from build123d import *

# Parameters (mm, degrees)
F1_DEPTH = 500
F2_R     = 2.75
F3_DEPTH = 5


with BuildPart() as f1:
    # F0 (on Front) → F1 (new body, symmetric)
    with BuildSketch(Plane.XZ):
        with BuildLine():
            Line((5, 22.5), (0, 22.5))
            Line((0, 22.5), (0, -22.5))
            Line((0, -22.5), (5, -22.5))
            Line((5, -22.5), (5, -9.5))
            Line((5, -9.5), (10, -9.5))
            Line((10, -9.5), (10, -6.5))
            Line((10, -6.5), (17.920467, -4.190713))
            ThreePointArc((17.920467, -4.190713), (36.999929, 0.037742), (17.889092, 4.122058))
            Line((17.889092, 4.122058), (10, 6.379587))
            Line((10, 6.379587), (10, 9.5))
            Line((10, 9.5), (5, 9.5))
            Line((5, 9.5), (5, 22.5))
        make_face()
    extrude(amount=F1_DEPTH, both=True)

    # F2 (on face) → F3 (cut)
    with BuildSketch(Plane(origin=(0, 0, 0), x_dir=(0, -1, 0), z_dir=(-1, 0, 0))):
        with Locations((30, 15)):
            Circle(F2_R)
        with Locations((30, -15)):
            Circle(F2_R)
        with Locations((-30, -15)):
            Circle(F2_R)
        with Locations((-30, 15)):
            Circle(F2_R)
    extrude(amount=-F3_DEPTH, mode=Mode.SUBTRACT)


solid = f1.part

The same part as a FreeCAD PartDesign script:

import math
import FreeCAD as App
import Part
import Sketcher

doc = App.newDocument("Part")
body = doc.addObject("PartDesign::Body", "Body")

# Sketch on XZ plane
sketch1 = body.newObject("Sketcher::SketchObject", "Sketch")
sketch1.AttachmentSupport = (doc.getObject("XZ_Plane"), [""])
sketch1.MapMode = "FlatFace"
sketch1.addGeometry([
    Part.LineSegment(App.Vector(5, 22.5, 0), App.Vector(0, 22.5, 0)),  # 0
    Part.LineSegment(App.Vector(0, 22.5, 0), App.Vector(0, -22.5, 0)),  # 1
    Part.LineSegment(App.Vector(0, -22.5, 0), App.Vector(5, -22.5, 0)),  # 2
    Part.LineSegment(App.Vector(5, -22.5, 0), App.Vector(5, -9.5, 0)),  # 3
    Part.LineSegment(App.Vector(5, -9.5, 0), App.Vector(10, -9.5, 0)),  # 4
    Part.LineSegment(App.Vector(10, -9.5, 0), App.Vector(10, -6.5, 0)),  # 5
    Part.LineSegment(App.Vector(10, -6.5, 0), App.Vector(17.920467, -4.190713, 0)),  # 6
    Part.ArcOfCircle(Part.Circle(App.Vector(27, 0.000001, 0), App.Vector(0, 0, 1), 10), math.radians(-155.224027), math.radians(155.65653)),  # 7
    Part.LineSegment(App.Vector(17.889092, 4.122058, 0), App.Vector(10, 6.379587, 0)),  # 8
    Part.LineSegment(App.Vector(10, 6.379587, 0), App.Vector(10, 9.5, 0)),  # 9
    Part.LineSegment(App.Vector(10, 9.5, 0), App.Vector(5, 9.5, 0)),  # 10
    Part.LineSegment(App.Vector(5, 9.5, 0), App.Vector(5, 22.5, 0)),  # 11
], False)
sketch1.addConstraint([
    Sketcher.Constraint("Coincident", 0, 2, 1, 1),
    Sketcher.Constraint("Coincident", 1, 2, 2, 1),
    Sketcher.Constraint("Coincident", 2, 2, 3, 1),
    Sketcher.Constraint("Coincident", 3, 2, 4, 1),
    Sketcher.Constraint("Coincident", 4, 2, 5, 1),
    Sketcher.Constraint("Coincident", 5, 2, 6, 1),
    Sketcher.Constraint("Coincident", 6, 2, 7, 1),
    Sketcher.Constraint("Coincident", 7, 2, 8, 1),
    Sketcher.Constraint("Coincident", 8, 2, 9, 1),
    Sketcher.Constraint("Coincident", 9, 2, 10, 1),
    Sketcher.Constraint("Coincident", 10, 2, 11, 1),
    Sketcher.Constraint("Coincident", 11, 2, 0, 1),
    Sketcher.Constraint("Horizontal", 0),
    Sketcher.Constraint("Vertical", 1),
    Sketcher.Constraint("Horizontal", 2),
    Sketcher.Constraint("Vertical", 3),
    Sketcher.Constraint("Horizontal", 4),
    Sketcher.Constraint("Vertical", 5),
    Sketcher.Constraint("Vertical", 9),
    Sketcher.Constraint("Horizontal", 10),
    Sketcher.Constraint("Vertical", 11),
    Sketcher.Constraint("Symmetric", 0, 2, 1, 2, -1, 1),
    Sketcher.Constraint("Symmetric", 4, 2, 9, 2, -1),
    Sketcher.Constraint("PointOnObject", 7, 3, -1),
    Sketcher.Constraint("Vertical", 3, 2, 10, 2),
    Sketcher.Constraint("Equal", 2, 4),
    Sketcher.Constraint("Radius", 7, 10.0),
    Sketcher.Constraint("DistanceX", 0, 2, 0, 1, 5.0),
    Sketcher.Constraint("DistanceY", 1, 2, 1, 1, 45.0),
    Sketcher.Constraint("DistanceY", 3, 1, 3, 2, 13.0),
    Sketcher.Constraint("DistanceY", 5, 1, 5, 2, 3.0),
    Sketcher.Constraint("DistanceX", -1, 1, 7, 3, 27.0),
    Sketcher.Constraint("DistanceY", 6, 2, 8, 2, 10.5703),
    Sketcher.Constraint("Distance", 6, 8.250249),
    Sketcher.Constraint("DistanceY", 6, 2, 7, 2, 8.312771),
])
pad1 = body.newObject("PartDesign::Pad", "Pad")
pad1.Profile = sketch1
pad1.Length = 1000
pad1.Midplane = True

# Sketch on YZ plane
sketch2 = body.newObject("Sketcher::SketchObject", "Sketch001")
sketch2.AttachmentSupport = (doc.getObject("YZ_Plane"), [""])
sketch2.MapMode = "FlatFace"
sketch2.addGeometry([
    Part.Circle(App.Vector(-30, 15, 0), App.Vector(0, 0, 1), 2.75),
    Part.Circle(App.Vector(-30, -15, 0), App.Vector(0, 0, 1), 2.75),
    Part.Circle(App.Vector(30, -15, 0), App.Vector(0, 0, 1), 2.75),
    Part.Circle(App.Vector(30, 15, 0), App.Vector(0, 0, 1), 2.75),
], False)
sketch2.addConstraint([
    Sketcher.Constraint("Equal", 0, 1),
    Sketcher.Constraint("Equal", 1, 2),
    Sketcher.Constraint("Equal", 2, 3),
    Sketcher.Constraint("Symmetric", 0, 3, 2, 3, -1, 1),
    Sketcher.Constraint("Symmetric", 1, 3, 3, 3, -1, 1),
    Sketcher.Constraint("Symmetric", 1, 3, 2, 3, -2),
    Sketcher.Constraint("Diameter", 0, 5.5),
    Sketcher.Constraint("DistanceX", 0, 3, -1, 1, 30.0),
    Sketcher.Constraint("DistanceY", -1, 1, 0, 3, 15.0),
])
pocket1 = body.newObject("PartDesign::Pocket", "Pocket")
pocket1.Profile = sketch2
pocket1.Length = 5
pocket1.Reversed = True

doc.recompute()
